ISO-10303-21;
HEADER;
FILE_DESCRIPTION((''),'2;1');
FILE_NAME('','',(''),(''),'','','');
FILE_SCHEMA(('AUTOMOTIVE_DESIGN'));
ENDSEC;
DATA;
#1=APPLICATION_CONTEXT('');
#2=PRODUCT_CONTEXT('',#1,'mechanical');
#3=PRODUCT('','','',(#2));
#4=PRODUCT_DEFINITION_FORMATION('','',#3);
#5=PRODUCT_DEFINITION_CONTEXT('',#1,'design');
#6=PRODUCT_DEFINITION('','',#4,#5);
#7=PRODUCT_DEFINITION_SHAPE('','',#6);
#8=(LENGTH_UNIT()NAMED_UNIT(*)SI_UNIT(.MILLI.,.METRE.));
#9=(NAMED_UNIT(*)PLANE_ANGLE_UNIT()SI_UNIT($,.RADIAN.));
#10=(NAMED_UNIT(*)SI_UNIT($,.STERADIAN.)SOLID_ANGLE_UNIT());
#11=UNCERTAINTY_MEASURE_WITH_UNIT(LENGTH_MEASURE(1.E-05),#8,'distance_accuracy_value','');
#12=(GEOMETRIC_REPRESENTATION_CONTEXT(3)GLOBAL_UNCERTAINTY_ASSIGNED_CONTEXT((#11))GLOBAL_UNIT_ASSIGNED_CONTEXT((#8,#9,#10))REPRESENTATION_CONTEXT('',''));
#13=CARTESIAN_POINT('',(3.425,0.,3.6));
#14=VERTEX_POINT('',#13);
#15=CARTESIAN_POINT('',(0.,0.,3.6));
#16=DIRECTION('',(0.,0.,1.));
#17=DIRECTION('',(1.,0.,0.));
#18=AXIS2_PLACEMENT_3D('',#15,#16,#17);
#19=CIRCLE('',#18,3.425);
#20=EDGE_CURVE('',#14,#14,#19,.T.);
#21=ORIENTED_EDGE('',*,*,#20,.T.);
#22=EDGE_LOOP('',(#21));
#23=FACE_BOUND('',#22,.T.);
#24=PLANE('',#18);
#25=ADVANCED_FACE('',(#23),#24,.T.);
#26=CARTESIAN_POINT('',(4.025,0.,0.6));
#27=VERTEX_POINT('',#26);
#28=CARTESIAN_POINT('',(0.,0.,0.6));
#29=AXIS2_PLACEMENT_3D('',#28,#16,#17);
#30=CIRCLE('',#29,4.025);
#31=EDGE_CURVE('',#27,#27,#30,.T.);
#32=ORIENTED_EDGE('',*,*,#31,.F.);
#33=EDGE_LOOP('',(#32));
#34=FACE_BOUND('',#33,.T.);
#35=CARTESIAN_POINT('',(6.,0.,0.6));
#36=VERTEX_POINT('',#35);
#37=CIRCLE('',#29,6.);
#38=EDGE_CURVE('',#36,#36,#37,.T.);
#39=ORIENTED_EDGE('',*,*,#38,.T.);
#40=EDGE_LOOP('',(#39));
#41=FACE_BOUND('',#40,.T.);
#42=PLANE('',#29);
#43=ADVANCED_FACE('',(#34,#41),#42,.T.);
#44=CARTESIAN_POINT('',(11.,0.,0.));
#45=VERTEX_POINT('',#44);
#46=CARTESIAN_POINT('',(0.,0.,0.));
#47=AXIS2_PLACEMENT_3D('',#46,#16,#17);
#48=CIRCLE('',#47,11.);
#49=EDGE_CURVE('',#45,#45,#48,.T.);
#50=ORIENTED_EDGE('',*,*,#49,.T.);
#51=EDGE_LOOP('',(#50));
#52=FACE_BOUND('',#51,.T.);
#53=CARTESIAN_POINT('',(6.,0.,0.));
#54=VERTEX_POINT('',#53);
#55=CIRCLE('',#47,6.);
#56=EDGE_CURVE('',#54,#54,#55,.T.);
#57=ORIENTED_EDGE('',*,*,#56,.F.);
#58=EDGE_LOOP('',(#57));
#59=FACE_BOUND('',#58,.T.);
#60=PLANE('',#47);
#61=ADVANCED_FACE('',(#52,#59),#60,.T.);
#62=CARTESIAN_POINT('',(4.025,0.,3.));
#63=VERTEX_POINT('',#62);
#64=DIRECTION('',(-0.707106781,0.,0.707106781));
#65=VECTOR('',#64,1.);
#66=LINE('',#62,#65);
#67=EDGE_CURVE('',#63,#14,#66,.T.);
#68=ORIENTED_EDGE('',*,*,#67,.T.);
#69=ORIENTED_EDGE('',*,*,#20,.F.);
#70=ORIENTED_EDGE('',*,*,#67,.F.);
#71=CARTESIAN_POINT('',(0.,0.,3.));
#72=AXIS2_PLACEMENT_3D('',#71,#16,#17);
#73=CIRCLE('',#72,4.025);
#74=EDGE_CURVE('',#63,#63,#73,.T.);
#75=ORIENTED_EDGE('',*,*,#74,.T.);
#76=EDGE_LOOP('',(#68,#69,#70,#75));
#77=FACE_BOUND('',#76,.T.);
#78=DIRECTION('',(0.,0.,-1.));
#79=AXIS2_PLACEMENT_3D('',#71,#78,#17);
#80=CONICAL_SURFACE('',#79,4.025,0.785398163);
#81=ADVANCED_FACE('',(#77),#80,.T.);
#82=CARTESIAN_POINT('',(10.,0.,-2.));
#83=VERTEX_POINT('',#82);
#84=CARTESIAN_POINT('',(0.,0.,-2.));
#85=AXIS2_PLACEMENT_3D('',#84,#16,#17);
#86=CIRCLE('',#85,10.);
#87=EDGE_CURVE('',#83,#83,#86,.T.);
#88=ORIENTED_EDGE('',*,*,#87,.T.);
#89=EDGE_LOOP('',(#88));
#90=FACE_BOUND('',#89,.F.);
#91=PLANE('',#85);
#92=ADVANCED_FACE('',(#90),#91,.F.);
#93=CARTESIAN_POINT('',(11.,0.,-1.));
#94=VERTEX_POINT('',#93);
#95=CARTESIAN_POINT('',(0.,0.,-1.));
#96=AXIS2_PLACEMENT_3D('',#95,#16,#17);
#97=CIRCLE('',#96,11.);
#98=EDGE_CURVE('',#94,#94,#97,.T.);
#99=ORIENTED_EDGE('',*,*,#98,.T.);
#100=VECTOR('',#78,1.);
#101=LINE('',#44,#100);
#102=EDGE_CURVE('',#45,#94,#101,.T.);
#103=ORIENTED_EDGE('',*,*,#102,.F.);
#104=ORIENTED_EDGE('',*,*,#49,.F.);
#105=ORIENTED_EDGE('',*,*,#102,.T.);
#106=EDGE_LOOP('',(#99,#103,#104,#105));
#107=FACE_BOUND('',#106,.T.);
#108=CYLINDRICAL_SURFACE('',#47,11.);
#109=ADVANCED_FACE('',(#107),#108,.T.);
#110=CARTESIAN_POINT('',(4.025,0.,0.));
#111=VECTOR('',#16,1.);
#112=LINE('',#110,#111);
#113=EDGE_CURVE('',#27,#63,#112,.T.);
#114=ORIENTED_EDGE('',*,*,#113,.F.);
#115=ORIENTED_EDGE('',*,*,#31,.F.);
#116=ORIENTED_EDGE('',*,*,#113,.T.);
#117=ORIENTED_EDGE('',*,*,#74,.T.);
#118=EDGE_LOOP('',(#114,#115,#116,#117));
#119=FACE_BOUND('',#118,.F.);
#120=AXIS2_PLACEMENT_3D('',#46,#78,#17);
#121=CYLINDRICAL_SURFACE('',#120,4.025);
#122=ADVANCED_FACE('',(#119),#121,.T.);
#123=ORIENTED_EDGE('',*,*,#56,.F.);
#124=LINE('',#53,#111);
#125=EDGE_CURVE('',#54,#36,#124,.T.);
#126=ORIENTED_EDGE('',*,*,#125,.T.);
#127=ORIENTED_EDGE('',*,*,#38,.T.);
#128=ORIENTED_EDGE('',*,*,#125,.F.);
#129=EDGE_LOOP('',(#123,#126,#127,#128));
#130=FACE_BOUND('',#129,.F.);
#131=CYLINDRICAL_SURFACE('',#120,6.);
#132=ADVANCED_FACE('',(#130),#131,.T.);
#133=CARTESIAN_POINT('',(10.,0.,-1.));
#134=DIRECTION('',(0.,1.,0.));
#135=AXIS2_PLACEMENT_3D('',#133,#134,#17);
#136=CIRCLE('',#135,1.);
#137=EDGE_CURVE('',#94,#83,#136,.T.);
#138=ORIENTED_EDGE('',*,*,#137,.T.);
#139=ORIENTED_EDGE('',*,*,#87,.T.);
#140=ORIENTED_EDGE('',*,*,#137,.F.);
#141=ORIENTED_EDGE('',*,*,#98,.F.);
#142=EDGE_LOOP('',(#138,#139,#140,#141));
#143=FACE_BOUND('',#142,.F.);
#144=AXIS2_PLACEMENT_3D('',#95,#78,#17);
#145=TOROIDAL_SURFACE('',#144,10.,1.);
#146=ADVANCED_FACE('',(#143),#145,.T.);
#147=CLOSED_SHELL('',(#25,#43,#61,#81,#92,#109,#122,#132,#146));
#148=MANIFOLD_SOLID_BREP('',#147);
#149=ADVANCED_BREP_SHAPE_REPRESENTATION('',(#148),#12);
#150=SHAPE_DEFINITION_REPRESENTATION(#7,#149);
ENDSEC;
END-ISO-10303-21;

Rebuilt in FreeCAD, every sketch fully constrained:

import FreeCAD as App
import Part
import Sketcher
from FreeCAD import Vector


def edges_at(feature, points):
    """Names of the edges that pass closest to the given points."""
    edges = feature.Shape.Edges
    near = lambda p: min(range(len(edges)), key=lambda i: edges[i].distToShape(Part.Vertex(*p))[0])
    return sorted({f"Edge{near(p) + 1}" for p in points})

doc = App.newDocument("Part")
body = doc.addObject("PartDesign::Body", "Body")

sketch1 = doc.addObject("Sketcher::SketchObject", "Sketch")
body.addObject(sketch1)
sketch1.AttachmentSupport = (doc.XY_Plane, [""])
sketch1.MapMode = "FlatFace"
sketch1.addGeometry(Part.Circle(Vector(0, 0, 0), Vector(0, 0, 1), 11), False)
sketch1.addConstraint([
    Sketcher.Constraint("Coincident", 0, 3, -1, 1),
    Sketcher.Constraint("Diameter", 0, 22.0),
])
pad1 = doc.addObject("PartDesign::Pad", "Pad")
body.addObject(pad1)
pad1.Profile = sketch1
pad1.Length = 2
pad1.Reversed = True

sketch2 = doc.addObject("Sketcher::SketchObject", "Sketch001")
body.addObject(sketch2)
sketch2.AttachmentSupport = (doc.XY_Plane, [""])
sketch2.MapMode = "FlatFace"
sketch2.addGeometry([
    Part.Circle(Vector(0, 0, 0), Vector(0, 0, 1), 6),
    Part.Circle(Vector(0, 0, 0), Vector(0, 0, 1), 4),
], False)
sketch2.addConstraint([
    Sketcher.Constraint("Coincident", 0, 3, -1, 1),
    Sketcher.Constraint("Coincident", 1, 3, -1, 1),
    Sketcher.Constraint("Diameter", 0, 12.0),
    Sketcher.Constraint("Diameter", 1, 8.05),
])
pad2 = doc.addObject("PartDesign::Pad", "Pad001")
body.addObject(pad2)
pad2.Profile = sketch2
pad2.Length = 0.6

sketch3 = doc.addObject("Sketcher::SketchObject", "Sketch002")
body.addObject(sketch3)
sketch3.AttachmentSupport = (doc.XY_Plane, [""])
sketch3.MapMode = "FlatFace"
sketch3.addGeometry(Part.Circle(Vector(0, 0, 0), Vector(0, 0, 1), 4), False)
sketch3.addConstraint([
    Sketcher.Constraint("Coincident", 0, 3, -1, 1),
    Sketcher.Constraint("Diameter", 0, 8.05),
])
pad3 = doc.addObject("PartDesign::Pad", "Pad002")
body.addObject(pad3)
pad3.Profile = sketch3
pad3.Length = 3.6
doc.recompute()

fillet = doc.addObject("PartDesign::Fillet", "Fillet")
body.addObject(fillet)
fillet.Base = (pad3, edges_at(pad3, [(-11, 0, -2)]))
fillet.Radius = 1
doc.recompute()

chamfer = doc.addObject("PartDesign::Chamfer", "Chamfer")
body.addObject(chamfer)
chamfer.Base = (fillet, edges_at(fillet, [(-4.025, 0, 3.6)]))
chamfer.Size = 0.6

doc.recompute()
